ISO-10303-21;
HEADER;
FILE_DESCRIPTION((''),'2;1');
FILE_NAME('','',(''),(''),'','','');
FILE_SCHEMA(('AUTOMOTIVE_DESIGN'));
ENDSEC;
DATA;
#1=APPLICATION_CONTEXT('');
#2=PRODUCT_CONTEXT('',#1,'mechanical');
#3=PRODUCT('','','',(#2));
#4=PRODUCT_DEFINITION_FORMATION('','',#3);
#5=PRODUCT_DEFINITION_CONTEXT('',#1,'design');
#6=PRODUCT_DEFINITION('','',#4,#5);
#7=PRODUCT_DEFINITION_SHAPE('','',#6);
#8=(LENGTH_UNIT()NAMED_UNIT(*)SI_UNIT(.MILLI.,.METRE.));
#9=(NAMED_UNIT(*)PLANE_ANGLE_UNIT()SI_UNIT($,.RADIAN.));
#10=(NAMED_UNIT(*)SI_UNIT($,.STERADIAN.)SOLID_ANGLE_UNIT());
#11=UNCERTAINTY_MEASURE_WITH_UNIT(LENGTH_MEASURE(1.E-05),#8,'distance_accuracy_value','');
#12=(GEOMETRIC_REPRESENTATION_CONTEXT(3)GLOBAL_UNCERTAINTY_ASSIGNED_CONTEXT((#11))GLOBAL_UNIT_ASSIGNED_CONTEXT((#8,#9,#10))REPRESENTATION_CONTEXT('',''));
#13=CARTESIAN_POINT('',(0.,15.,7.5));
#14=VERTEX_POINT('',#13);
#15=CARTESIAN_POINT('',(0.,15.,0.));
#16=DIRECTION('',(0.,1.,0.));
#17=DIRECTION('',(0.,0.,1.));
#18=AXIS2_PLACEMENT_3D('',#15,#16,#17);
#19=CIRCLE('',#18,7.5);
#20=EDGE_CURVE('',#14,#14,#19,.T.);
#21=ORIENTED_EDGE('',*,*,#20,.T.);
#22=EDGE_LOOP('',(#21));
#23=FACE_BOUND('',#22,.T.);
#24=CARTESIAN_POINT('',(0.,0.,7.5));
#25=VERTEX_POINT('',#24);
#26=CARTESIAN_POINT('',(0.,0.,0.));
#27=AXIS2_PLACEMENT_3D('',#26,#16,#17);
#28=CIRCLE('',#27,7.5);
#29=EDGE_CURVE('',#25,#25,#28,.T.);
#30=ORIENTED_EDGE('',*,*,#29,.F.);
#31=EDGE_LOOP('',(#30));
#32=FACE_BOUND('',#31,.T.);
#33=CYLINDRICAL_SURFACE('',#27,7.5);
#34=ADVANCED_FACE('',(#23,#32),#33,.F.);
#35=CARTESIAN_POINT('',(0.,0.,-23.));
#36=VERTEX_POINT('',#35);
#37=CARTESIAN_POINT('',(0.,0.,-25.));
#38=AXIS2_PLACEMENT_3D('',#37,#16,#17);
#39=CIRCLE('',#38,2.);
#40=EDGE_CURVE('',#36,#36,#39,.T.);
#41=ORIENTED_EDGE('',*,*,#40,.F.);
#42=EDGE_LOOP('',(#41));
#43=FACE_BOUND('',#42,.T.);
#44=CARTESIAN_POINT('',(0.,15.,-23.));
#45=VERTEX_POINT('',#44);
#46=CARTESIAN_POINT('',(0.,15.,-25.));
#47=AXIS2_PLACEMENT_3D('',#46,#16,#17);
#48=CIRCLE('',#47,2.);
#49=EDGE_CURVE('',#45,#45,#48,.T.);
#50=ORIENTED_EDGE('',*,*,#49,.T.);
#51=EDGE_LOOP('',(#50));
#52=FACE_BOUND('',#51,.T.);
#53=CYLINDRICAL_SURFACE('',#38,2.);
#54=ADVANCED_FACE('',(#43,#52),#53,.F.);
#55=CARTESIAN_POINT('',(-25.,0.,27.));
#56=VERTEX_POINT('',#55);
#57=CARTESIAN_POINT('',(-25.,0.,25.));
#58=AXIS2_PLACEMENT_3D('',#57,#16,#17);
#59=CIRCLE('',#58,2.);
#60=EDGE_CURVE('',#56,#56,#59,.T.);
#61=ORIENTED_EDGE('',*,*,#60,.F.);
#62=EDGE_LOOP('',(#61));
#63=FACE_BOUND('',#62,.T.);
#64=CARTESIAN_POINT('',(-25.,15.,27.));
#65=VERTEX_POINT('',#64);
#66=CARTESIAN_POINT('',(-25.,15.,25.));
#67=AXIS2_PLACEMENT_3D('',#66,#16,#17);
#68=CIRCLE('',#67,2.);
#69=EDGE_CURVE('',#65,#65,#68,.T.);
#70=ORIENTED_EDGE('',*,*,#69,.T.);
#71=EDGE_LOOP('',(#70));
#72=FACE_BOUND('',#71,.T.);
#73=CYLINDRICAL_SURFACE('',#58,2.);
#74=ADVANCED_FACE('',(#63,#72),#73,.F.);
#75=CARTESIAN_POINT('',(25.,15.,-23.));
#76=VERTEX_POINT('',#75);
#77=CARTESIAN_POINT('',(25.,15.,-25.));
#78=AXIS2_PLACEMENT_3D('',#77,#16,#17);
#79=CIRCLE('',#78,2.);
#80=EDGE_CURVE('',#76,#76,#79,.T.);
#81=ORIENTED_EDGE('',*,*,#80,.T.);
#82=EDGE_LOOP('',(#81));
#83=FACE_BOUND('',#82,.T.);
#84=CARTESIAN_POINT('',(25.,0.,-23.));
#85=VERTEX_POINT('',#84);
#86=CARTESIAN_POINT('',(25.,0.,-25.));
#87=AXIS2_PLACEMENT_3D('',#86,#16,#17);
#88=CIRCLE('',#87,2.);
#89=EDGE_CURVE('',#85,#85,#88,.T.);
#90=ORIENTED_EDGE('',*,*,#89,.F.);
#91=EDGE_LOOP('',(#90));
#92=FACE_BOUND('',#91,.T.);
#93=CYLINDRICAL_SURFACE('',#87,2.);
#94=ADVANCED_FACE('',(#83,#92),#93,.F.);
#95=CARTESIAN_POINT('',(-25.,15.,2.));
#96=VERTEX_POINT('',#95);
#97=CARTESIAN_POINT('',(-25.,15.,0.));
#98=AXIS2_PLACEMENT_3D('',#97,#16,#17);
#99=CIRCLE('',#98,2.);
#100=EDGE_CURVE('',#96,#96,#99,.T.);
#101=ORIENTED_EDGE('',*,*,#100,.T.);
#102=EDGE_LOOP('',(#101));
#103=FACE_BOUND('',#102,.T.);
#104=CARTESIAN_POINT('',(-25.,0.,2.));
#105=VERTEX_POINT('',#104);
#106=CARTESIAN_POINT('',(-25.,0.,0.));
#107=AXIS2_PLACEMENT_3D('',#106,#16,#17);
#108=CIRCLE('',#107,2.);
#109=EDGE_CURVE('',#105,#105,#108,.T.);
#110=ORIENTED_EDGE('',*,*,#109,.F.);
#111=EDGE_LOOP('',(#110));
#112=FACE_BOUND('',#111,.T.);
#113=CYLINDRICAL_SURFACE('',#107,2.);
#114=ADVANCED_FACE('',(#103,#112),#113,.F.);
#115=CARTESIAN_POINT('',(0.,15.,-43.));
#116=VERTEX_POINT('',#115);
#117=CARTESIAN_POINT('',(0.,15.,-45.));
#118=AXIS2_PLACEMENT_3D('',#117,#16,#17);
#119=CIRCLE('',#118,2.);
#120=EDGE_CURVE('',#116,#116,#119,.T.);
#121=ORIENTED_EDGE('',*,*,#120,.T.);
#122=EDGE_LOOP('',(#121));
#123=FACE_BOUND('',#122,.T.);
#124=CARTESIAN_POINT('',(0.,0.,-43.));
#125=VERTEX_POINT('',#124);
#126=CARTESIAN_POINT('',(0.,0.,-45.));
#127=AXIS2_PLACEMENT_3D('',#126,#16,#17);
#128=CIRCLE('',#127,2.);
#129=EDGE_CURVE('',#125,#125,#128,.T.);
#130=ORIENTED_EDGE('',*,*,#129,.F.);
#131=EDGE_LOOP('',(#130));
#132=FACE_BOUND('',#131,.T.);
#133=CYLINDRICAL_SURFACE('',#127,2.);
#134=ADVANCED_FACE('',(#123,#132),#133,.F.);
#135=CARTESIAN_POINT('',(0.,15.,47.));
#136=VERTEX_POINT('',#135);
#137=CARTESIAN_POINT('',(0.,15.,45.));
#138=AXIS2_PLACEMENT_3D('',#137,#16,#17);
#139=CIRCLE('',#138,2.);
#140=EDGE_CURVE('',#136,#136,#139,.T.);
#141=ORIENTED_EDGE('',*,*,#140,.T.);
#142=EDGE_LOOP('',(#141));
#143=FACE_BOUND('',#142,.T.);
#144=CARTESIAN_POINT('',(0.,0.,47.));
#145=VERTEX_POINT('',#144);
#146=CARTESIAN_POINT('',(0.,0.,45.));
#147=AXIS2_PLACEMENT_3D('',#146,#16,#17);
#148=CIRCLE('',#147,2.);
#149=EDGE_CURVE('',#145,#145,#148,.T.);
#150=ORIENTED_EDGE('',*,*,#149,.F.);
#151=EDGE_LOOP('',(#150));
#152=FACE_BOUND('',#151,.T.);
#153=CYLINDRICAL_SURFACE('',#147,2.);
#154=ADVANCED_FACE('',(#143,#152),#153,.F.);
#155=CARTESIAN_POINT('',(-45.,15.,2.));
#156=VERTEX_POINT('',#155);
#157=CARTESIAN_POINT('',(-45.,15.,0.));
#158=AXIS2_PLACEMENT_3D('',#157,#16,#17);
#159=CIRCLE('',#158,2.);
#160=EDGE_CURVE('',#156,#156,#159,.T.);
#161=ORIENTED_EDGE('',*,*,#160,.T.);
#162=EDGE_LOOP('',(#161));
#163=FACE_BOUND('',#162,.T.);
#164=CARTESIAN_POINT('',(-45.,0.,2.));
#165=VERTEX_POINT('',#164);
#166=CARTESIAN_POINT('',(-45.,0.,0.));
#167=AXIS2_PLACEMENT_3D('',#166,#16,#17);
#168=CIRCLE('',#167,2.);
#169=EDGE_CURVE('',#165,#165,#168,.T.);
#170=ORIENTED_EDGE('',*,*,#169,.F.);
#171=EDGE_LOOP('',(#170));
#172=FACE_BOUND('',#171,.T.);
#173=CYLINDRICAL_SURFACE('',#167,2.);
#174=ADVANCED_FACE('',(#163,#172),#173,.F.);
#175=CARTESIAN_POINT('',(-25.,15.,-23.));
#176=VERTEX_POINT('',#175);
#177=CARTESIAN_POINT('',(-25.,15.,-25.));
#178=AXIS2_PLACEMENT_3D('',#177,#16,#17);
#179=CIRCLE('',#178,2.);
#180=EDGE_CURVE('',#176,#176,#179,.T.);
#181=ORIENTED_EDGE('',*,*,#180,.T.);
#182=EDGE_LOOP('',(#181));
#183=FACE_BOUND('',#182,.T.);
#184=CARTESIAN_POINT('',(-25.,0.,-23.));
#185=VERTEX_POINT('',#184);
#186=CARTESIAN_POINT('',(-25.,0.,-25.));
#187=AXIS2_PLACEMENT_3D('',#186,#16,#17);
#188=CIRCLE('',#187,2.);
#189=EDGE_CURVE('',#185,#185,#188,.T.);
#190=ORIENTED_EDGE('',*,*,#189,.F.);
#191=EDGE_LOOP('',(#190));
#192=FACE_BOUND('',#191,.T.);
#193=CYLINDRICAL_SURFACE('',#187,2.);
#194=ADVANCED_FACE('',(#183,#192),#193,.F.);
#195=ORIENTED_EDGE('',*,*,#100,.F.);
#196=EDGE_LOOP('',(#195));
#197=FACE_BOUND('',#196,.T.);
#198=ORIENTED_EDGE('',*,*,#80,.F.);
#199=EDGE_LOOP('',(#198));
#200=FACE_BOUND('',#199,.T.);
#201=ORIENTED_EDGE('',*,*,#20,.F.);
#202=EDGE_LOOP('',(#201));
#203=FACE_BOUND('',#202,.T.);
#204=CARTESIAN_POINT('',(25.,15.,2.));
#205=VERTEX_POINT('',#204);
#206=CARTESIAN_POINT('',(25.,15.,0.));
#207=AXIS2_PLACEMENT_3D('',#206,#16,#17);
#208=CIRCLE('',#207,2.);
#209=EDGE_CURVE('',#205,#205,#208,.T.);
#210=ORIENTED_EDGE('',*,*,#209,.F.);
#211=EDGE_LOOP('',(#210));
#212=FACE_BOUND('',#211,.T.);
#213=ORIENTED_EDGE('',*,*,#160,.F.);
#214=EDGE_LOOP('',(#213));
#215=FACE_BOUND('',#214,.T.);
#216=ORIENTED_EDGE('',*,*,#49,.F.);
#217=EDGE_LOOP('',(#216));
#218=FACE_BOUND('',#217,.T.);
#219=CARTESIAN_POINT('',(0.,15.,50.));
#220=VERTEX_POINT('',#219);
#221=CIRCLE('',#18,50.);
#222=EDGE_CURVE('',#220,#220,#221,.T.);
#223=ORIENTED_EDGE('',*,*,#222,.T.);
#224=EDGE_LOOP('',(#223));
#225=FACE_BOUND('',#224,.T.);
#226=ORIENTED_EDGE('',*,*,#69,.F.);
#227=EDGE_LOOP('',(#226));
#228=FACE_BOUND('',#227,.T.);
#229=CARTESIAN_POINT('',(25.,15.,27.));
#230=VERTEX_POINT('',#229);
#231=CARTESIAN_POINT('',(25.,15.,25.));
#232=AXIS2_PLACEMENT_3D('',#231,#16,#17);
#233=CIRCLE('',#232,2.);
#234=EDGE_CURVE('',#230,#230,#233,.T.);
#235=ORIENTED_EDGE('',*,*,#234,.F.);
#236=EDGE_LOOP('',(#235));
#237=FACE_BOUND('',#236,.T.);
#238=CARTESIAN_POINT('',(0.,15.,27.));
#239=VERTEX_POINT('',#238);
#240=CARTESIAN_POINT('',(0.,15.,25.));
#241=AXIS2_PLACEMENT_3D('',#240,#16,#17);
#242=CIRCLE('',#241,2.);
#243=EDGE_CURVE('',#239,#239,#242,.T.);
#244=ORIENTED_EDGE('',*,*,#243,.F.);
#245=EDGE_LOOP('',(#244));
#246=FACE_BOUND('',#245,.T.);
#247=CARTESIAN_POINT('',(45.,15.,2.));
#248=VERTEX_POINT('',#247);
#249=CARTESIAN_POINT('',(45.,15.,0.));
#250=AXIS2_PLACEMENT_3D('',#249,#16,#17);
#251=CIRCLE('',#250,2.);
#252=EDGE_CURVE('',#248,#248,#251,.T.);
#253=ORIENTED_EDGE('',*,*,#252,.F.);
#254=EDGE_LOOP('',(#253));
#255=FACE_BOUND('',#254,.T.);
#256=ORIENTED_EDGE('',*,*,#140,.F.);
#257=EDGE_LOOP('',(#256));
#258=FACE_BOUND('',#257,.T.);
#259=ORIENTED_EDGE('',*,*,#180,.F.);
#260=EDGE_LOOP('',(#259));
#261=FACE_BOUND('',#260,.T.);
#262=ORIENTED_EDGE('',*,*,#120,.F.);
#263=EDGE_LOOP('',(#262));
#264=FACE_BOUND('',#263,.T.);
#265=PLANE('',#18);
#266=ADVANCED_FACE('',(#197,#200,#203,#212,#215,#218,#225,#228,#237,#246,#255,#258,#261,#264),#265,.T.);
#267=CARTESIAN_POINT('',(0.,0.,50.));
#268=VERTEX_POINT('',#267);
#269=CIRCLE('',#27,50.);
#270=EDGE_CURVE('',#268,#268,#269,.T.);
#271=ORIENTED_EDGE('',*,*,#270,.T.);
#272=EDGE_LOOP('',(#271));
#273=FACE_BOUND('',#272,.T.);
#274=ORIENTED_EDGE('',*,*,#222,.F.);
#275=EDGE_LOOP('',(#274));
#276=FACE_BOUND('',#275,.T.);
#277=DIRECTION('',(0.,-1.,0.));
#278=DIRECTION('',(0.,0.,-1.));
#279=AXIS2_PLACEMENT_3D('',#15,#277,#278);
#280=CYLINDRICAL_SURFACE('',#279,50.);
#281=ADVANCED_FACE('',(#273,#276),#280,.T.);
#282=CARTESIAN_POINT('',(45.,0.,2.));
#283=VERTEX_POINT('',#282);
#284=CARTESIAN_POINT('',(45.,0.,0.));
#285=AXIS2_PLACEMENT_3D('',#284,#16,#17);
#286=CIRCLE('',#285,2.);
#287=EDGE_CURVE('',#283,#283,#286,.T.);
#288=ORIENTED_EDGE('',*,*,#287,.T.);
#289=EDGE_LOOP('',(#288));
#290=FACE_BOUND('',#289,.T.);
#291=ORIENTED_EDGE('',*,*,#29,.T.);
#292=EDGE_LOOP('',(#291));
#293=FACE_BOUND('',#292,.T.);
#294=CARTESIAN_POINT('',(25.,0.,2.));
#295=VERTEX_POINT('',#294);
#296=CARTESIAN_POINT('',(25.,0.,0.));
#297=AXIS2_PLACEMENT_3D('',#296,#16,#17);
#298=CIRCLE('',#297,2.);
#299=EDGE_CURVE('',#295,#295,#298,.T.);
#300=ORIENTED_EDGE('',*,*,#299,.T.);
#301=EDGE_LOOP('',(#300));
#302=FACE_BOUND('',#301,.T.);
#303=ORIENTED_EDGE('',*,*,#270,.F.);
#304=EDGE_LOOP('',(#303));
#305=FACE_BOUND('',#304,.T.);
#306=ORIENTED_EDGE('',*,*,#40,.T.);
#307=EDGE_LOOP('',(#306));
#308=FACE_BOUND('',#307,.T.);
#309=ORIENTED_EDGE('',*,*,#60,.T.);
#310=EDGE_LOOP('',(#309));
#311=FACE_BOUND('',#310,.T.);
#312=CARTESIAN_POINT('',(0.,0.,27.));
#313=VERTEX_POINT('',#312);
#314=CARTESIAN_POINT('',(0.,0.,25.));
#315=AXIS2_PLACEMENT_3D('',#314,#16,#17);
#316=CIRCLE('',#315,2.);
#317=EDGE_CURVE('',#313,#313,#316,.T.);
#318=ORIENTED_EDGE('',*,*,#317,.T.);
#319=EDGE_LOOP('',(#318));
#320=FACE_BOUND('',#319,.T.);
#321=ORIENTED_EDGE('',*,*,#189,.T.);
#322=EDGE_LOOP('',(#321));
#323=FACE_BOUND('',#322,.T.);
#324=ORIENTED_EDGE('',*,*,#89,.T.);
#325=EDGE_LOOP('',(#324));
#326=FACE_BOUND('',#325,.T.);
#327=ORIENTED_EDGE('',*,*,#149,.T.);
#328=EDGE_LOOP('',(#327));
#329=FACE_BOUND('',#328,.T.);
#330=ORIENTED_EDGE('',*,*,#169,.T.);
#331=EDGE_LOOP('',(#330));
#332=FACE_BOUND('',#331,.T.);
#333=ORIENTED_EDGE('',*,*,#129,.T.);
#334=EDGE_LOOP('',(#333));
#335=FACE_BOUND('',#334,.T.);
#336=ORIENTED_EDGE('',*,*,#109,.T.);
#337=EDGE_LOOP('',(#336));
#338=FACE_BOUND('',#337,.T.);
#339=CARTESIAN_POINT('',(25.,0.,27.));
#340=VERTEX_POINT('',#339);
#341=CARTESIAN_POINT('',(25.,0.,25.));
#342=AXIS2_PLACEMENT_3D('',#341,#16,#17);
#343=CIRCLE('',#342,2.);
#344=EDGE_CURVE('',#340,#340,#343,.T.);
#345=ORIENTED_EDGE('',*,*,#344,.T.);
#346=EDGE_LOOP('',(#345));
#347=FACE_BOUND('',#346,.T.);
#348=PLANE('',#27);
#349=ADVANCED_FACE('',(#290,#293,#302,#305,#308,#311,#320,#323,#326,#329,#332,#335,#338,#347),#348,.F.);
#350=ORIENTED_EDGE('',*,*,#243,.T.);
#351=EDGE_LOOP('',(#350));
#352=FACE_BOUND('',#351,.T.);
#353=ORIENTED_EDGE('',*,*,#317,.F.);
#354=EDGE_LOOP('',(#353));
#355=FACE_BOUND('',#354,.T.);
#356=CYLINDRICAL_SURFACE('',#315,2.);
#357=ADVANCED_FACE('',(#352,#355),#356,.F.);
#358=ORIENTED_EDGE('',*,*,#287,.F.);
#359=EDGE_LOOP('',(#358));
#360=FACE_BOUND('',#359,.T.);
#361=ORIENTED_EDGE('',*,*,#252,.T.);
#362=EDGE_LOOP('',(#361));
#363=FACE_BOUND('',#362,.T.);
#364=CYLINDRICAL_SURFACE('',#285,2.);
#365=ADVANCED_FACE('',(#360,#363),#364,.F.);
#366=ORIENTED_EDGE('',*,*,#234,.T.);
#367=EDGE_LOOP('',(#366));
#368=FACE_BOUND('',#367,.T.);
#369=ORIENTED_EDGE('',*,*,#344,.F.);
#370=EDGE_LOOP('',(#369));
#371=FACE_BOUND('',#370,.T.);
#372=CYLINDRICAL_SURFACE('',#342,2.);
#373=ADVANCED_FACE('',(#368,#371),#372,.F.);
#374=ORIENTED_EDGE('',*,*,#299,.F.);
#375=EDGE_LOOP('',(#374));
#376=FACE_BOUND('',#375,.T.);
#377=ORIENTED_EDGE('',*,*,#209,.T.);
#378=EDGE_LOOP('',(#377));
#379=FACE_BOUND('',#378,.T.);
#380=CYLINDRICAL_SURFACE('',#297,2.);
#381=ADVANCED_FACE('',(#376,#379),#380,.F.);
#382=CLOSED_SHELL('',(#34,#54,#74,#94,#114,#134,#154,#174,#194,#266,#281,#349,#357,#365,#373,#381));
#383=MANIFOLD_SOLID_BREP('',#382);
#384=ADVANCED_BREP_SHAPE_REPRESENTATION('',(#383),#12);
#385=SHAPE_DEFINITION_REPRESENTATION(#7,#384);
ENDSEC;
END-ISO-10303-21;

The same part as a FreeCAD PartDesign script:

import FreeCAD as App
import Part
import Sketcher

doc = App.newDocument("Part")
body = doc.addObject("PartDesign::Body", "Body")

sketch1 = body.newObject("Sketcher::SketchObject", "Sketch")
sketch1.AttachmentSupport = (doc.getObject("XZ_Plane"), [""])
sketch1.MapMode = "FlatFace"
sketch1.addGeometry(Part.Circle(App.Vector(0, 0, 0), App.Vector(0, 0, 1), 50), False)
sketch1.addConstraint([
    Sketcher.Constraint("Coincident", 0, 3, -1, 1),
    Sketcher.Constraint("Diameter", 0, 100.0),
])
pad1 = body.newObject("PartDesign::Pad", "Pad")
pad1.Profile = sketch1
pad1.Length = 15
pad1.Reversed = True

sketch2 = body.newObject("Sketcher::SketchObject", "Sketch001")
sketch2.AttachmentSupport = (doc.getObject("XZ_Plane"), [""])
sketch2.MapMode = "FlatFace"
sketch2.AttachmentOffset = App.Placement(App.Vector(0, 0, -15), App.Rotation())
sketch2.addGeometry([
    Part.Circle(App.Vector(0, 0, 0), App.Vector(0, 0, 1), 7.5),
    Part.Circle(App.Vector(45, 0, 0), App.Vector(0, 0, 1), 2),
    Part.Circle(App.Vector(0, 45, 0), App.Vector(0, 0, 1), 2),
    Part.Circle(App.Vector(0, 25, 0), App.Vector(0, 0, 1), 2),
    Part.Circle(App.Vector(25, 25, 0), App.Vector(0, 0, 1), 2),
    Part.Circle(App.Vector(-25, 25, 0), App.Vector(0, 0, 1), 2),
    Part.Circle(App.Vector(-25, 0, 0), App.Vector(0, 0, 1), 2),
    Part.Circle(App.Vector(-45, 0, 0), App.Vector(0, 0, 1), 2),
    Part.Circle(App.Vector(-25, -25, 0), App.Vector(0, 0, 1), 2),
    Part.Circle(App.Vector(0, -45, 0), App.Vector(0, 0, 1), 2),
    Part.Circle(App.Vector(0, -25, 0), App.Vector(0, 0, 1), 2),
    Part.Circle(App.Vector(25, -25, 0), App.Vector(0, 0, 1), 2),
    Part.Circle(App.Vector(25, 0, 0), App.Vector(0, 0, 1), 2),
], False)
sketch2.addConstraint([
    Sketcher.Constraint("Coincident", 0, 3, -1, 1),
    Sketcher.Constraint("Equal", 1, 2),
    Sketcher.Constraint("Equal", 2, 3),
    Sketcher.Constraint("Equal", 3, 4),
    Sketcher.Constraint("Equal", 4, 5),
    Sketcher.Constraint("Equal", 5, 6),
    Sketcher.Constraint("Equal", 6, 7),
    Sketcher.Constraint("Equal", 7, 8),
    Sketcher.Constraint("Equal", 8, 9),
    Sketcher.Constraint("Equal", 9, 10),
    Sketcher.Constraint("Equal", 10, 11),
    Sketcher.Constraint("Equal", 11, 12),
    Sketcher.Constraint("Symmetric", 1, 3, 7, 3, -1, 1),
    Sketcher.Constraint("Symmetric", 4, 3, 8, 3, -1, 1),
    Sketcher.Constraint("Symmetric", 2, 3, 9, 3, -1, 1),
    Sketcher.Constraint("Symmetric", 3, 3, 10, 3, -1, 1),
    Sketcher.Constraint("Symmetric", 5, 3, 11, 3, -1, 1),
    Sketcher.Constraint("Symmetric", 6, 3, 12, 3, -1, 1),
    Sketcher.Constraint("Symmetric", 4, 3, 5, 3, -2),
    Sketcher.Constraint("PointOnObject", 1, 3, -1),
    Sketcher.Constraint("PointOnObject", 2, 3, -2),
    Sketcher.Constraint("PointOnObject", 3, 3, -2),
    Sketcher.Constraint("PointOnObject", 6, 3, -1),
    Sketcher.Constraint("Horizontal", 3, 3, 4, 3),
    Sketcher.Constraint("Vertical", 5, 3, 6, 3),
    Sketcher.Constraint("Diameter", 0, 15.0),
    Sketcher.Constraint("Diameter", 1, 4.0),
    Sketcher.Constraint("DistanceX", -1, 1, 1, 3, 45.0),
    Sketcher.Constraint("DistanceY", -1, 1, 2, 3, 45.0),
    Sketcher.Constraint("DistanceY", -1, 1, 3, 3, 25.0),
    Sketcher.Constraint("DistanceX", -1, 1, 4, 3, 25.0),
])
pocket1 = body.newObject("PartDesign::Pocket", "Pocket")
pocket1.Profile = sketch2
pocket1.Type = "ThroughAll"
pocket1.Reversed = True

doc.recompute()
